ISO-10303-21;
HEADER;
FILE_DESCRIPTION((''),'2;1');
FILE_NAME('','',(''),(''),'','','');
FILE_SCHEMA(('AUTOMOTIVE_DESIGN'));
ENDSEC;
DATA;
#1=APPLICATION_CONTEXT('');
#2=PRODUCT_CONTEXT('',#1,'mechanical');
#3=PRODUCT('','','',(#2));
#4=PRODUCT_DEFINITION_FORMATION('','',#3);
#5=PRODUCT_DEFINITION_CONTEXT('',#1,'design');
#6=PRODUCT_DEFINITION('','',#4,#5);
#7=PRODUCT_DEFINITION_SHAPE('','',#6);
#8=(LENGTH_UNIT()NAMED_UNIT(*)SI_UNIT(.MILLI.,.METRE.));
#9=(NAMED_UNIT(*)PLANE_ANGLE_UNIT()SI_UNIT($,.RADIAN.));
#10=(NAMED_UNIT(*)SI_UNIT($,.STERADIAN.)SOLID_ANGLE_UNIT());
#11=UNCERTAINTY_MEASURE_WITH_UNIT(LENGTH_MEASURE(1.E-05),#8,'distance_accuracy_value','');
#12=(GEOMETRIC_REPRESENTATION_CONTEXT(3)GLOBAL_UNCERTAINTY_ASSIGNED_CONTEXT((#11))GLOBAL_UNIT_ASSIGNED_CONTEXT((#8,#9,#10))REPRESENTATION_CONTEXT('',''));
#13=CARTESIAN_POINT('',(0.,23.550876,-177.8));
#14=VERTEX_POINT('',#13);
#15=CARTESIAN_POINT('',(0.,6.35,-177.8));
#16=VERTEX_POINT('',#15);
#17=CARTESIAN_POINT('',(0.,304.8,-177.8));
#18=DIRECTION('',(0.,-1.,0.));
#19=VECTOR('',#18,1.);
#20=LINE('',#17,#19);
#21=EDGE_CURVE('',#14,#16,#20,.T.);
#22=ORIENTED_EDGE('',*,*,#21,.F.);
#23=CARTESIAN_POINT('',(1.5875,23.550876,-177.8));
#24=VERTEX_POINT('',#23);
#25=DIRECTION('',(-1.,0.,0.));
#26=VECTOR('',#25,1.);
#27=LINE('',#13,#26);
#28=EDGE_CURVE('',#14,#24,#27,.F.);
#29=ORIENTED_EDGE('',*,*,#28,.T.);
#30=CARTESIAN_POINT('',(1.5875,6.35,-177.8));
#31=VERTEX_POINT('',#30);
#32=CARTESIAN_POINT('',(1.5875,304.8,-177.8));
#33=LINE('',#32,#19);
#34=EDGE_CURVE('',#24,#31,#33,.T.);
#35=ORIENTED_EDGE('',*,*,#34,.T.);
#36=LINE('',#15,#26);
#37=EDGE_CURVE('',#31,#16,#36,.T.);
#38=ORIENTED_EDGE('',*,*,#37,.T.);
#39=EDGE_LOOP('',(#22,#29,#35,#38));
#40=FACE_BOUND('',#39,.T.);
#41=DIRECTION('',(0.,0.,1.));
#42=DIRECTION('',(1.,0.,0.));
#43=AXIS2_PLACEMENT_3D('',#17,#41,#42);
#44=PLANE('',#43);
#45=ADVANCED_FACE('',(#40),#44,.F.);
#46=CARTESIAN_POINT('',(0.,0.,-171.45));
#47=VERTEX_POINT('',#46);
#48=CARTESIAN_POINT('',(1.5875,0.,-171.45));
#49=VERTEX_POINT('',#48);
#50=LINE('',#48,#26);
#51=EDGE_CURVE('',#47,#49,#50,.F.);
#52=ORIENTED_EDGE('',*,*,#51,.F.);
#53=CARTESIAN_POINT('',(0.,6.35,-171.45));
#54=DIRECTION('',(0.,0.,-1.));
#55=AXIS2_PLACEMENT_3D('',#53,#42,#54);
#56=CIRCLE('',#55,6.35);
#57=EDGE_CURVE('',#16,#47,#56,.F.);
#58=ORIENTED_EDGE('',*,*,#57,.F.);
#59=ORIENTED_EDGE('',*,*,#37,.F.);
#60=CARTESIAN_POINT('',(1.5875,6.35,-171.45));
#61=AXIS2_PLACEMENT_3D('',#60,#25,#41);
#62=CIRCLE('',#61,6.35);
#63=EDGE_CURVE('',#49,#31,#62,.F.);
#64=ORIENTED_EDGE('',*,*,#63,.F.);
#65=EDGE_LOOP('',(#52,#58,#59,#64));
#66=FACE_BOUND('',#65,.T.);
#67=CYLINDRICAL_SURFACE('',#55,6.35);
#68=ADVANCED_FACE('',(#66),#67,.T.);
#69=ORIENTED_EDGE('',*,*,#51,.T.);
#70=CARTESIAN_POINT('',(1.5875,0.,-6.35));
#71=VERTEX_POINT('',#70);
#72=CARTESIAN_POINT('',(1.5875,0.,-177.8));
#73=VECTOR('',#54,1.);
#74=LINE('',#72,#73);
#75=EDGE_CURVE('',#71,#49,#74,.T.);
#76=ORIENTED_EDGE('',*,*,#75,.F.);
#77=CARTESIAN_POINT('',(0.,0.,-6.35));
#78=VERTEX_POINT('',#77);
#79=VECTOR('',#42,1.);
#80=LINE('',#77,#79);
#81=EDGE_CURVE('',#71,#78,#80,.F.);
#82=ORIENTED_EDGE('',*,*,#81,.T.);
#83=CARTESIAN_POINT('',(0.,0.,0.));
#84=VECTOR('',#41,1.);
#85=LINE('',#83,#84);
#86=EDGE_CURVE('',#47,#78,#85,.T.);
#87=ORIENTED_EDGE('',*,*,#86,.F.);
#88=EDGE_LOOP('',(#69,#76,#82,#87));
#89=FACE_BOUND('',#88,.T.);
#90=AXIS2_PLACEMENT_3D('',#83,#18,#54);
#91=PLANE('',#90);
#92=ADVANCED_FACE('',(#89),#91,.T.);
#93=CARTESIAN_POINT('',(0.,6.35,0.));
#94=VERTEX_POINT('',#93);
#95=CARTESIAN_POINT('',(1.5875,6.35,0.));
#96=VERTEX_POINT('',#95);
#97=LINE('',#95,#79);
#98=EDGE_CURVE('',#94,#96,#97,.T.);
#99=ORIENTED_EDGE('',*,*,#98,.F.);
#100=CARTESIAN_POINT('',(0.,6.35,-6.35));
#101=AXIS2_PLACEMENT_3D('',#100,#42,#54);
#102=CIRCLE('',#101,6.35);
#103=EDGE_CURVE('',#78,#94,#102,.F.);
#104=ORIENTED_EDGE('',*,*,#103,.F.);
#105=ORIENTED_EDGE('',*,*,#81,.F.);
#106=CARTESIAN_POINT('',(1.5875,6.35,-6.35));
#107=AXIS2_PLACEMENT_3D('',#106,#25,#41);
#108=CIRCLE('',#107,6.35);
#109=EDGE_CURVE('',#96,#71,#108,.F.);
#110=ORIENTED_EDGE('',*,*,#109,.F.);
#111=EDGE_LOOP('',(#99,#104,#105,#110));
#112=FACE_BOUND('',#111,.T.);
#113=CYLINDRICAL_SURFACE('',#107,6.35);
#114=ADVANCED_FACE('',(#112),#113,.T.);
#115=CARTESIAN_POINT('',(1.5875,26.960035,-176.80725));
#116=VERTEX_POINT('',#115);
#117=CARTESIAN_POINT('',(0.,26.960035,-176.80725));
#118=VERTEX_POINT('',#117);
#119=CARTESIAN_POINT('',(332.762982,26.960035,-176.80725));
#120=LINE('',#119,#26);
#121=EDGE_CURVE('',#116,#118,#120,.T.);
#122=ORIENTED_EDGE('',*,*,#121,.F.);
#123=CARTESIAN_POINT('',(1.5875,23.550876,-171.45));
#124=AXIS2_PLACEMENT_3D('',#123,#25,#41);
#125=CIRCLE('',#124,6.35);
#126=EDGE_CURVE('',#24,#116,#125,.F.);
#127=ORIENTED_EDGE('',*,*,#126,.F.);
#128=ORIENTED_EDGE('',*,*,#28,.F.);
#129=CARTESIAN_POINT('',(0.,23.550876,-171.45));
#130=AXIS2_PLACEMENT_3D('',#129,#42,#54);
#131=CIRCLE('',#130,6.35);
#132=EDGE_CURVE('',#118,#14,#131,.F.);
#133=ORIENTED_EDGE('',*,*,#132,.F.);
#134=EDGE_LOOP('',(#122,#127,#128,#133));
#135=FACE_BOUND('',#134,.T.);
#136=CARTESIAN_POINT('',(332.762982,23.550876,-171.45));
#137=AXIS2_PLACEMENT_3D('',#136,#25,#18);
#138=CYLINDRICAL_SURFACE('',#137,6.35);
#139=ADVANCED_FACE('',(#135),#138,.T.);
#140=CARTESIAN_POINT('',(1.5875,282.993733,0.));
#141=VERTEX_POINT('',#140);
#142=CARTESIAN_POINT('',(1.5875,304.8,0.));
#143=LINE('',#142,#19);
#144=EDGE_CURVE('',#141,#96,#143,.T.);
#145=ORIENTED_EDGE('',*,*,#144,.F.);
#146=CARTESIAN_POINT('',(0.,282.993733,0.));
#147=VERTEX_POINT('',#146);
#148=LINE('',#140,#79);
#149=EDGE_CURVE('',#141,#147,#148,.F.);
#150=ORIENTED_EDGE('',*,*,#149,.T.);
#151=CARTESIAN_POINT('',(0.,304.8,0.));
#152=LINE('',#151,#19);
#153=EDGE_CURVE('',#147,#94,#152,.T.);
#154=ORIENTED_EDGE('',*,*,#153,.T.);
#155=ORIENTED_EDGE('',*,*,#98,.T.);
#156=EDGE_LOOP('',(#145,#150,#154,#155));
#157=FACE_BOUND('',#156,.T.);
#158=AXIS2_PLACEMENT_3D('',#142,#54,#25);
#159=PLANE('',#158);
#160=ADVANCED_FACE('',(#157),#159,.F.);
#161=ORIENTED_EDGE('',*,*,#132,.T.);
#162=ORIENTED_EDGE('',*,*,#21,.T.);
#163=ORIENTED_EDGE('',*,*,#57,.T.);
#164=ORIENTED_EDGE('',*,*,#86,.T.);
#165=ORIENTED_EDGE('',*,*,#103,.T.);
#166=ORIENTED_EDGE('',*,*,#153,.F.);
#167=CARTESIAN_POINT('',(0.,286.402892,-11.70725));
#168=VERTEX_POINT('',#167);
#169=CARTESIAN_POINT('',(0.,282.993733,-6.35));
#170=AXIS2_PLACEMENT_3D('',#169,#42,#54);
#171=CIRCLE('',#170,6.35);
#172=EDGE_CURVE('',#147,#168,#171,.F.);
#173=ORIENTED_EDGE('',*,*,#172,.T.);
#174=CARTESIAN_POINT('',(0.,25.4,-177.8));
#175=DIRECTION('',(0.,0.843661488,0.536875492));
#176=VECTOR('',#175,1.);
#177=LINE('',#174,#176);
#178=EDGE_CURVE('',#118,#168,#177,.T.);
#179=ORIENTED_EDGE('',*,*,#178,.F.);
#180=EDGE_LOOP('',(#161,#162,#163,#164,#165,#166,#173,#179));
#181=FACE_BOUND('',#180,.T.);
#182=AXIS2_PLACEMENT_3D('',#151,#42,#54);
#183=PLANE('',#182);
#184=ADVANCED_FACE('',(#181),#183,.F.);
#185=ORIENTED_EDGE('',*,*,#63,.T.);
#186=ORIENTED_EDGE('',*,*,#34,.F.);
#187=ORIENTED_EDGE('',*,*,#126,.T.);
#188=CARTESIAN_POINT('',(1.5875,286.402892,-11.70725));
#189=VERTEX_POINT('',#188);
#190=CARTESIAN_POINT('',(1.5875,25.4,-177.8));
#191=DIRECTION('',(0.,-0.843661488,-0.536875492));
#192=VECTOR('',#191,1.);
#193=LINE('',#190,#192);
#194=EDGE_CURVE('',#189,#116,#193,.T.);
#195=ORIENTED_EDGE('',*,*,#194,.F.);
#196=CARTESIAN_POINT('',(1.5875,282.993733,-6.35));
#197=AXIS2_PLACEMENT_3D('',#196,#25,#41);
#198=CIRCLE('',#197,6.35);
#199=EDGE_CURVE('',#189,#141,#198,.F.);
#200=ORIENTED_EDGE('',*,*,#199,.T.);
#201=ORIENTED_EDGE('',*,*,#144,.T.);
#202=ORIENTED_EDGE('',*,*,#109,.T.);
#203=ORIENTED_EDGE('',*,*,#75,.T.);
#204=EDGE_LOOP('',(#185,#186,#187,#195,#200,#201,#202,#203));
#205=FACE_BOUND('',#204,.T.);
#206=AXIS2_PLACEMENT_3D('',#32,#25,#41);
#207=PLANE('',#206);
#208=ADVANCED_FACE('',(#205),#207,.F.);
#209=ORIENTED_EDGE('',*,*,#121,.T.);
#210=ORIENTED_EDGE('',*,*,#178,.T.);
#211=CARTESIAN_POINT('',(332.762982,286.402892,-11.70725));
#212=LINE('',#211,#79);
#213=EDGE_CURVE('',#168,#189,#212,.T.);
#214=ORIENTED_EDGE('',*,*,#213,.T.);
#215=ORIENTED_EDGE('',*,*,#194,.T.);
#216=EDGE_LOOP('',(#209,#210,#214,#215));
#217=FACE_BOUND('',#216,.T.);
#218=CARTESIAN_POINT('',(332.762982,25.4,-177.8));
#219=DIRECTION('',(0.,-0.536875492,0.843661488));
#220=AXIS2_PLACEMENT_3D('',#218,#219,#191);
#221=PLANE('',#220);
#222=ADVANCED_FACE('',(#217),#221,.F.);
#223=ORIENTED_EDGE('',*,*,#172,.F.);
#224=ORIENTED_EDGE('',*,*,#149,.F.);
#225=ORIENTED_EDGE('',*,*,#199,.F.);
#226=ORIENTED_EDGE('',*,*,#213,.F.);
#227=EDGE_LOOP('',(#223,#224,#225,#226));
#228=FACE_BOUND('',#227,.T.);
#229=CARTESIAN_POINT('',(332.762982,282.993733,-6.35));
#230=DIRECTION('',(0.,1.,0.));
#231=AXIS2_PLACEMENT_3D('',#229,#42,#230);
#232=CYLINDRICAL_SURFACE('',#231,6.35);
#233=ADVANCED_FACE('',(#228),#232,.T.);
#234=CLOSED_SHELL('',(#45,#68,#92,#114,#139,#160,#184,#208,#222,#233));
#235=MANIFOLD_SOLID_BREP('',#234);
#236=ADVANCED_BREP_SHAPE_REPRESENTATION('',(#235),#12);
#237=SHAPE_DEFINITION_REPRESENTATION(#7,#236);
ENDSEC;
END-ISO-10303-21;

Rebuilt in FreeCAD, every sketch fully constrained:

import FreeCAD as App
import Part
import Sketcher
Q = App.Units.Quantity


def edges_at(feature, points):
    """Names of the edges that pass closest to the given points."""
    edges = feature.Shape.Edges
    near = lambda p: min(range(len(edges)), key=lambda i: edges[i].distToShape(Part.Vertex(*p))[0])
    return sorted({f"Edge{near(p) + 1}" for p in points})


def add_polygon(sketch, points):
    """Adds a closed chain of lines whose ends are joined by coincident constraints."""
    first, n = sketch.GeometryCount, len(points)
    for a, b in zip(points, points[1:] + points[:1]):
        sketch.addGeometry(Part.LineSegment(App.Vector(*a, 0), App.Vector(*b, 0)), False)
    for i in range(n):
        sketch.addConstraint(Sketcher.Constraint("Coincident", first + i, 2, first + (i + 1) % n, 1))

doc = App.newDocument("Part")
body = doc.addObject("PartDesign::Body", "Body")

sketch1 = doc.addObject("Sketcher::SketchObject", "Sketch")
body.addObject(sketch1)
sketch1.AttachmentSupport = (doc.XZ_Plane, [""])
sketch1.MapMode = "FlatFace"
add_polygon(sketch1, [(0, -177.8), (0, 0), (1.6, 0), (1.6, -177.8)])
sketch1.addConstraint([
    Sketcher.Constraint("Vertical", 0),
    Sketcher.Constraint("Horizontal", 1),
    Sketcher.Constraint("Vertical", 2),
    Sketcher.Constraint("Horizontal", 3),
    Sketcher.Constraint("Coincident", 0, 2, -1, 1),
    Sketcher.Constraint("DistanceY", 0, 1, 0, 2, Q("7 in")),
    Sketcher.Constraint("DistanceX", 1, 1, 1, 2, Q("0.0625 in")),
])
pad1 = doc.addObject("PartDesign::Pad", "Pad")
body.addObject(pad1)
pad1.Profile = sketch1
pad1.Length = Q("12 in")
pad1.Reversed = True

sketch2 = doc.addObject("Sketcher::SketchObject", "Sketch001")
body.addObject(sketch2)
sketch2.AttachmentSupport = (doc.YZ_Plane, [""])
sketch2.MapMode = "FlatFace"
add_polygon(sketch2, [(25, -178), (305, 0), (305, -178)])
sketch2.addConstraint([
    Sketcher.Constraint("Vertical", 1),
    Sketcher.Constraint("Horizontal", 2),
    Sketcher.Constraint("PointOnObject", 0, 2, -1),
    Sketcher.Constraint("DistanceX", 2, 2, 2, 1, Q("11 in")),
    Sketcher.Constraint("DistanceY", 1, 2, 1, 1, Q("7 in")),
    Sketcher.Constraint("DistanceX", -1, 1, 0, 2, Q("12 in")),
])
pocket1 = doc.addObject("PartDesign::Pocket", "Pocket")
body.addObject(pocket1)
pocket1.Profile = sketch2
pocket1.Length = Q("0.0625 in")
pocket1.Reversed = True
doc.recompute()

fillet = doc.addObject("PartDesign::Fillet", "Fillet")
body.addObject(fillet)
fillet.Base = (pocket1, edges_at(pocket1, [
    (0.794, 25.4, -177.8),
    (0.794, 304.8, 0),
    (0.794, 0, -177.8),
    (0.794, 0, 0),
]))
fillet.Radius = Q("0.25 in")

doc.recompute()
